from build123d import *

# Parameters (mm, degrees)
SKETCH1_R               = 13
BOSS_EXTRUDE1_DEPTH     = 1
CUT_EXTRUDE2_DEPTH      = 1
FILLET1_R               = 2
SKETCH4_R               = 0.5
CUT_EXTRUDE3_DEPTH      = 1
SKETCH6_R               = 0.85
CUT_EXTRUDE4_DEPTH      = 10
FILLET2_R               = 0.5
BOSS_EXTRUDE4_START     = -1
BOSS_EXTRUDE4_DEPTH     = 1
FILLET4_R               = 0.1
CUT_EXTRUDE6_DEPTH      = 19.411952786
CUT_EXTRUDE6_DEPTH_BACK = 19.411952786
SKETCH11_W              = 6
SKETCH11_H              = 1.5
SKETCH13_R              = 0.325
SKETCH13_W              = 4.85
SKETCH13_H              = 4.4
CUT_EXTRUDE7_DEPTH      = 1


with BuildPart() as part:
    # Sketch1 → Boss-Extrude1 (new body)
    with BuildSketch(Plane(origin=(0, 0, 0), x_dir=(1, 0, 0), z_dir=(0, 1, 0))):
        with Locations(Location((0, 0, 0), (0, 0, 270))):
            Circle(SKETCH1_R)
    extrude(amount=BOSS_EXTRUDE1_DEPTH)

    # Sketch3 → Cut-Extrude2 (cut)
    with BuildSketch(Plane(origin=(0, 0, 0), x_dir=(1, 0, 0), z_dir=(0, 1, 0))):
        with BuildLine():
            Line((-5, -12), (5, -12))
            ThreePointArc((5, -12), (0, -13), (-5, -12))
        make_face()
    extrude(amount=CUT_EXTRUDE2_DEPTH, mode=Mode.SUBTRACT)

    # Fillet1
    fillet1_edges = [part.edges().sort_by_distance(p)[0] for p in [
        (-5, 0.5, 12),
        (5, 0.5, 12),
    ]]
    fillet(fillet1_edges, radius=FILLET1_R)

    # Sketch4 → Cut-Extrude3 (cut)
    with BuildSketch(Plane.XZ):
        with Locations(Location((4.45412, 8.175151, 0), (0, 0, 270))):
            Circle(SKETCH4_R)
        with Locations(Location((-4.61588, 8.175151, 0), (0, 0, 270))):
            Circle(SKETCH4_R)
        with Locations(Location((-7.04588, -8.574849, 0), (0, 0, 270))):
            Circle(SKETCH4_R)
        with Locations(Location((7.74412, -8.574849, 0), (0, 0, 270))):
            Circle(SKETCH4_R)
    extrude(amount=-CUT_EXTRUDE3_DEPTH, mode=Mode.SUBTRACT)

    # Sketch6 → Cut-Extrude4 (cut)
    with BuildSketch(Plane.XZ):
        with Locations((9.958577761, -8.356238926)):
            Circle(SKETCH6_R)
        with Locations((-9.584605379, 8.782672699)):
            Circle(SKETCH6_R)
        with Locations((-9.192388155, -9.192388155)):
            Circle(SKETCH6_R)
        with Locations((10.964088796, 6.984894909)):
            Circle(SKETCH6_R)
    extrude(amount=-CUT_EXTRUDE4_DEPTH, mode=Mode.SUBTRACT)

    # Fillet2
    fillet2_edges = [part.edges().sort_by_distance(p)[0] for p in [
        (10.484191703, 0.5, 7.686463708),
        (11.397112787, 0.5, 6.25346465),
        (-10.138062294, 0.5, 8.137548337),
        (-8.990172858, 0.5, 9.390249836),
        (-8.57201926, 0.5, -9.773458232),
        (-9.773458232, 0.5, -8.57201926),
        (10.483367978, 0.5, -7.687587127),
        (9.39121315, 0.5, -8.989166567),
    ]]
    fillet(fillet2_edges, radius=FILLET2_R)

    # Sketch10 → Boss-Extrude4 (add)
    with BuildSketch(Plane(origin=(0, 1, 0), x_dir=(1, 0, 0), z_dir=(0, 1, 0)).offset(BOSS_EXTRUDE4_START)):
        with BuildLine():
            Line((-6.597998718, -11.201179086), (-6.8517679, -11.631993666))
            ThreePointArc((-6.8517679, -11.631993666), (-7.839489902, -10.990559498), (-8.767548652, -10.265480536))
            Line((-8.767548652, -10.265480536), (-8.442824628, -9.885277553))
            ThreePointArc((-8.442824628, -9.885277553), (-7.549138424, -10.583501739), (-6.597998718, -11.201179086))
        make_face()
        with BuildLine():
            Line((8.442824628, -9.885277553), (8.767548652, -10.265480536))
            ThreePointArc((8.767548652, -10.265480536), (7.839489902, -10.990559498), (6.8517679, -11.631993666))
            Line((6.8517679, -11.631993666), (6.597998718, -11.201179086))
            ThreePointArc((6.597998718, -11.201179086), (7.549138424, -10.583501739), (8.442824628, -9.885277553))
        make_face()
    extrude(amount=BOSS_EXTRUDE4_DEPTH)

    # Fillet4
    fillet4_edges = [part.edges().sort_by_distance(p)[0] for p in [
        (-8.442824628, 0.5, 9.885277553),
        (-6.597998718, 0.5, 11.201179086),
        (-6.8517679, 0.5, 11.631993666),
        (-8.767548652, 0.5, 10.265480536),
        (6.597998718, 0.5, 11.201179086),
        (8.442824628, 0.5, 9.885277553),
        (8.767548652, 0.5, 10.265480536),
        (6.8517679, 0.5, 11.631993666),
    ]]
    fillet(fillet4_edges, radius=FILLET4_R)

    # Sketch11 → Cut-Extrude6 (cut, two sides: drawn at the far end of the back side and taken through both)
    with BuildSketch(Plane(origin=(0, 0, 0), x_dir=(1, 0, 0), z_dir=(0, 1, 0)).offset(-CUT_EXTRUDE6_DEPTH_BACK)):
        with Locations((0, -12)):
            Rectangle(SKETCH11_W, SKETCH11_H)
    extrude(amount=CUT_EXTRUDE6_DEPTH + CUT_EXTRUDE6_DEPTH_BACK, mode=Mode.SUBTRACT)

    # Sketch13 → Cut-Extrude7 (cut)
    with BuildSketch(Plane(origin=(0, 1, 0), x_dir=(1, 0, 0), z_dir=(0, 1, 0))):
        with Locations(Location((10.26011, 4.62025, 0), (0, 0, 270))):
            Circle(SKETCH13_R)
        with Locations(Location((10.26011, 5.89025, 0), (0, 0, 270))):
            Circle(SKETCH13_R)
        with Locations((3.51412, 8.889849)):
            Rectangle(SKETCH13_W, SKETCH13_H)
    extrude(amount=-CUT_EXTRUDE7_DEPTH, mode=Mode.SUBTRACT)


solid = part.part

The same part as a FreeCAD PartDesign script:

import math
import FreeCAD as App
import Part
import Sketcher
from FreeCAD import Vector
Q = App.Units.Quantity


def edges_at(feature, points):
    """Names of the edges that pass closest to the given points."""
    edges = feature.Shape.Edges
    near = lambda p: min(range(len(edges)), key=lambda i: edges[i].distToShape(Part.Vertex(*p))[0])
    return sorted({f"Edge{near(p) + 1}" for p in points})

doc = App.newDocument("Part")
body = doc.addObject("PartDesign::Body", "Body")

# Sketch on XZ plane
sketch1 = body.newObject("Sketcher::SketchObject", "Sketch")
sketch1.AttachmentSupport = (doc.getObject("XZ_Plane"), [""])
sketch1.MapMode = "FlatFace"
sketch1.addGeometry(Part.Circle(Vector(0, 0, 0), Vector(0, 0, 1), 13), False)
sketch1.addConstraint([
    Sketcher.Constraint("Coincident", 0, 3, -1, 1),
    Sketcher.Constraint("Diameter", 0, Q("26 mm")),
])
pad1 = body.newObject("PartDesign::Pad", "Pad")
pad1.Profile = sketch1
pad1.Length = 1
pad1.Reversed = True

# Sketch on XZ plane
sketch2 = body.newObject("Sketcher::SketchObject", "Sketch001")
sketch2.AttachmentSupport = (doc.getObject("XZ_Plane"), [""])
sketch2.MapMode = "FlatFace"
sketch2.addGeometry([
    Part.LineSegment(Vector(5, 12, 0), Vector(-5, 12, 0)),
    Part.ArcOfCircle(Part.Circle(Vector(0, 0, 0), Vector(0, 0, 1), 13), math.radians(67.380135), math.radians(112.619865)),
], False)
sketch2.addConstraint([
    Sketcher.Constraint("Coincident", 0, 1, 1, 1),
    Sketcher.Constraint("Coincident", 1, 2, 0, 2),
    Sketcher.Constraint("Horizontal", 0),
    Sketcher.Constraint("Coincident", 1, 3, -1, 1),
    Sketcher.Constraint("Radius", 1, Q("13 mm")),
    Sketcher.Constraint("DistanceX", 0, 2, 0, 1, Q("10 mm")),
])
pocket1 = body.newObject("PartDesign::Pocket", "Pocket")
pocket1.Profile = sketch2
pocket1.Length = 1
doc.recompute()

fillet = body.newObject("PartDesign::Fillet", "Fillet")
fillet.Base = (pocket1, edges_at(pocket1, [(-5, 0.5, 12), (5, 0.5, 12)]))
fillet.Radius = 2

# Sketch on XZ plane
sketch3 = body.newObject("Sketcher::SketchObject", "Sketch002")
sketch3.AttachmentSupport = (doc.getObject("XZ_Plane"), [""])
sketch3.MapMode = "FlatFace"
sketch3.addGeometry([
    Part.Circle(Vector(4.45412, 8.175151, 0), Vector(0, 0, 1), 0.5),
    Part.Circle(Vector(-4.61588, 8.175151, 0), Vector(0, 0, 1), 0.5),
    Part.Circle(Vector(-7.04588, -8.574849, 0), Vector(0, 0, 1), 0.5),
    Part.Circle(Vector(7.74412, -8.574849, 0), Vector(0, 0, 1), 0.5),
], False)
sketch3.addConstraint([
    Sketcher.Constraint("Equal", 0, 1),
    Sketcher.Constraint("Equal", 1, 2),
    Sketcher.Constraint("Equal", 2, 3),
    Sketcher.Constraint("Horizontal", 0, 3, 1, 3),
    Sketcher.Constraint("Horizontal", 2, 3, 3, 3),
    Sketcher.Constraint("Diameter", 0, Q("1 mm")),
    Sketcher.Constraint("DistanceX", 2, 3, 0, 3, Q("11.5 mm")),
    Sketcher.Constraint("DistanceX", 1, 3, 0, 3, Q("9.07 mm")),
    Sketcher.Constraint("DistanceY", 2, 3, 1, 3, Q("16.75 mm")),
    Sketcher.Constraint("DistanceX", 2, 3, 3, 3, Q("14.79 mm")),
    Sketcher.Constraint("DistanceX", -1, 1, 0, 3, Q("4.45412 mm")),
    Sketcher.Constraint("DistanceY", -1, 1, 0, 3, Q("8.175151 mm")),
])
pocket2 = body.newObject("PartDesign::Pocket", "Pocket001")
pocket2.Profile = sketch3
pocket2.Length = 1

# Sketch on XZ plane
sketch4 = body.newObject("Sketcher::SketchObject", "Sketch003")
sketch4.AttachmentSupport = (doc.getObject("XZ_Plane"), [""])
sketch4.MapMode = "FlatFace"
sketch4.addGeometry([
    Part.Circle(Vector(9.958578, -8.356239, 0), Vector(0, 0, 1), 0.85),
    Part.Circle(Vector(-9.584605, 8.782673, 0), Vector(0, 0, 1), 0.85),
    Part.Circle(Vector(-9.192388, -9.192388, 0), Vector(0, 0, 1), 0.85),
    Part.Circle(Vector(10.964089, 6.984895, 0), Vector(0, 0, 1), 0.85),
], False)
sketch4.addConstraint([
    Sketcher.Constraint("Equal", 0, 1),
    Sketcher.Constraint("Equal", 1, 2),
    Sketcher.Constraint("Equal", 2, 3),
    Sketcher.Constraint("Diameter", 0, Q("1.7 mm")),
    Sketcher.Constraint("DistanceY", 0, 3, -1, 1, Q("8.356239 mm")),
    Sketcher.Constraint("DistanceX", 2, 3, -1, 1, Q("9.192388 mm")),
    Sketcher.Constraint("DistanceY", 2, 3, -1, 1, Q("9.192388 mm")),
    Sketcher.Constraint("DistanceX", -1, 1, 3, 3, Q("10.964089 mm")),
    Sketcher.Constraint("DistanceY", 0, 3, 1, 3, Q("17.138912 mm")),
    Sketcher.Constraint("DistanceX", 0, 3, 3, 3, Q("1.005511 mm")),
    Sketcher.Constraint("DistanceX", 1, 3, -1, 1, Q("9.584605 mm")),
    Sketcher.Constraint("DistanceY", -1, 1, 3, 3, Q("6.984895 mm")),
])
pocket3 = body.newObject("PartDesign::Pocket", "Pocket002")
pocket3.Profile = sketch4
pocket3.Length = 10
doc.recompute()

fillet2 = body.newObject("PartDesign::Fillet", "Fillet001")
fillet2.Base = (pocket3, edges_at(pocket3, [
    (10.484, 0.5, 7.686),
    (11.397, 0.5, 6.253),
    (-10.138, 0.5, 8.138),
    (-8.99, 0.5, 9.39),
    (-8.572, 0.5, -9.773),
    (-9.773, 0.5, -8.572),
    (10.483, 0.5, -7.688),
    (9.391, 0.5, -8.989),
]))
fillet2.Radius = 0.5

# Sketch on XZ plane
sketch5 = body.newObject("Sketcher::SketchObject", "Sketch004")
sketch5.AttachmentSupport = (doc.getObject("XZ_Plane"), [""])
sketch5.MapMode = "FlatFace"
sketch5.addGeometry([
    Part.LineSegment(Vector(-6.851768, 11.631994, 0), Vector(-6.597999, 11.201179, 0)),  # 0
    Part.ArcOfCircle(Part.Circle(Vector(0, 0, 0), Vector(0, 0, 1), 13), math.radians(120.5), math.radians(130.5)),  # 1
    Part.LineSegment(Vector(-8.442825, 9.885278, 0), Vector(-8.767549, 10.265481, 0)),  # 2
    Part.ArcOfCircle(Part.Circle(Vector(0, 0, 0), Vector(0, 0, 1), 13.5), math.radians(120.5), math.radians(130.5)),  # 3
    Part.LineSegment(Vector(8.767549, 10.265481, 0), Vector(8.442825, 9.885278, 0)),  # 4
    Part.ArcOfCircle(Part.Circle(Vector(0, 0, 0), Vector(0, 0, 1), 13), math.radians(49.5), math.radians(59.5)),  # 5
    Part.LineSegment(Vector(6.597999, 11.201179, 0), Vector(6.851768, 11.631994, 0)),  # 6
    Part.ArcOfCircle(Part.Circle(Vector(0, 0, 0), Vector(0, 0, 1), 13.5), math.radians(49.5), math.radians(59.5)),  # 7
], False)
sketch5.addConstraint([
    Sketcher.Constraint("Coincident", 0, 2, 1, 1),
    Sketcher.Constraint("Coincident", 1, 2, 2, 1),
    Sketcher.Constraint("Coincident", 2, 2, 3, 2),
    Sketcher.Constraint("Coincident", 3, 1, 0, 1),
    Sketcher.Constraint("Coincident", 4, 2, 5, 1),
    Sketcher.Constraint("Coincident", 5, 2, 6, 1),
    Sketcher.Constraint("Coincident", 6, 2, 7, 2),
    Sketcher.Constraint("Coincident", 7, 1, 4, 1),
    Sketcher.Constraint("Coincident", 1, 3, -1, 1),
    Sketcher.Constraint("Coincident", 3, 3, -1, 1),
    Sketcher.Constraint("Coincident", 5, 3, -1, 1),
    Sketcher.Constraint("Coincident", 7, 3, -1, 1),
    Sketcher.Constraint("Equal", 1, 5),
    Sketcher.Constraint("Equal", 3, 7),
    Sketcher.Constraint("Horizontal", 1, 2, 4, 2),
    Sketcher.Constraint("Horizontal", 0, 2, 5, 2),
    Sketcher.Constraint("Horizontal", 3, 1, 6, 2),
    Sketcher.Constraint("Horizontal", 2, 2, 7, 1),
    Sketcher.Constraint("Radius", 1, Q("13 mm")),
    Sketcher.Constraint("Radius", 3, Q("13.5 mm")),
    Sketcher.Constraint("Angle", 0, Q("-59.5 deg")),
    Sketcher.Constraint("Angle", 2, Q("130.5 deg")),
    Sketcher.Constraint("DistanceX", 0, 2, -1, 1, Q("6.597999 mm")),
    Sketcher.Constraint("DistanceY", 1, 2, 0, 2, Q("1.315902 mm")),
])
pad2 = body.newObject("PartDesign::Pad", "Pad001")
pad2.Profile = sketch5
pad2.Length = 1
pad2.Reversed = True
doc.recompute()

fillet3 = body.newObject("PartDesign::Fillet", "Fillet002")
fillet3.Base = (pad2, edges_at(pad2, [
    (-8.443, 0.5, 9.885),
    (-6.598, 0.5, 11.201),
    (-6.852, 0.5, 11.632),
    (-8.768, 0.5, 10.265),
    (6.598, 0.5, 11.201),
    (8.443, 0.5, 9.885),
    (8.768, 0.5, 10.265),
    (6.852, 0.5, 11.632),
]))
fillet3.Radius = 0.1

# Sketch on XZ plane
sketch6 = body.newObject("Sketcher::SketchObject", "Sketch005")
sketch6.AttachmentSupport = (doc.getObject("XZ_Plane"), [""])
sketch6.MapMode = "FlatFace"
sketch6.addGeometry([
    Part.LineSegment(Vector(-3, 11.25, 0), Vector(-3, 12.75, 0)),
    Part.LineSegment(Vector(-3, 12.75, 0), Vector(3, 12.75, 0)),
    Part.LineSegment(Vector(3, 12.75, 0), Vector(3, 11.25, 0)),
    Part.LineSegment(Vector(3, 11.25, 0), Vector(-3, 11.25, 0)),
], False)
sketch6.addConstraint([
    Sketcher.Constraint("Coincident", 0, 2, 1, 1),
    Sketcher.Constraint("Coincident", 1, 2, 2, 1),
    Sketcher.Constraint("Coincident", 2, 2, 3, 1),
    Sketcher.Constraint("Coincident", 3, 2, 0, 1),
    Sketcher.Constraint("Vertical", 0),
    Sketcher.Constraint("Horizontal", 1),
    Sketcher.Constraint("Vertical", 2),
    Sketcher.Constraint("Horizontal", 3),
    Sketcher.Constraint("DistanceX", 1, 1, 1, 2, Q("6 mm")),
    Sketcher.Constraint("DistanceY", 0, 1, 0, 2, Q("1.5 mm")),
    Sketcher.Constraint("DistanceX", 0, 2, -1, 1, Q("3 mm")),
    Sketcher.Constraint("DistanceY", -1, 1, 0, 2, Q("12.75 mm")),
])
pocket4 = body.newObject("PartDesign::Pocket", "Pocket003")
pocket4.Profile = sketch6
pocket4.Type = "ThroughAll"
pocket4.Midplane = True

# Sketch on XZ plane
sketch7 = body.newObject("Sketcher::SketchObject", "Sketch006")
sketch7.AttachmentSupport = (doc.getObject("XZ_Plane"), [""])
sketch7.MapMode = "FlatFace"
sketch7.AttachmentOffset = App.Placement(Vector(0, 0, -1), App.Rotation())
sketch7.addGeometry([
    Part.Circle(Vector(10.26011, -4.62025, 0), Vector(0, 0, 1), 0.325),  # 0
    Part.Circle(Vector(10.26011, -5.89025, 0), Vector(0, 0, 1), 0.325),  # 1
    Part.LineSegment(Vector(1.08912, -11.089849, 0), Vector(1.08912, -6.689849, 0)),  # 2
    Part.LineSegment(Vector(1.08912, -6.689849, 0), Vector(5.93912, -6.689849, 0)),  # 3
    Part.LineSegment(Vector(5.93912, -6.689849, 0), Vector(5.93912, -11.089849, 0)),  # 4
    Part.LineSegment(Vector(5.93912, -11.089849, 0), Vector(1.08912, -11.089849, 0)),  # 5
], False)
sketch7.addConstraint([
    Sketcher.Constraint("Coincident", 2, 2, 3, 1),
    Sketcher.Constraint("Coincident", 3, 2, 4, 1),
    Sketcher.Constraint("Coincident", 4, 2, 5, 1),
    Sketcher.Constraint("Coincident", 5, 2, 2, 1),
    Sketcher.Constraint("Vertical", 2),
    Sketcher.Constraint("Horizontal", 3),
    Sketcher.Constraint("Vertical", 4),
    Sketcher.Constraint("Horizontal", 5),
    Sketcher.Constraint("Equal", 0, 1),
    Sketcher.Constraint("Vertical", 0, 3, 1, 3),
    Sketcher.Constraint("Diameter", 0, Q("0.65 mm")),
    Sketcher.Constraint("DistanceY", 2, 1, 2, 2, Q("4.4 mm")),
    Sketcher.Constraint("DistanceX", 3, 1, 3, 2, Q("4.85 mm")),
    Sketcher.Constraint("DistanceY", 1, 3, 0, 3, Q("1.27 mm")),
    Sketcher.Constraint("DistanceY", 2, 2, 1, 3, Q("0.799599 mm")),
    Sketcher.Constraint("DistanceX", -1, 1, 0, 3, Q("10.26011 mm")),
    Sketcher.Constraint("DistanceY", 0, 3, -1, 1, Q("4.62025 mm")),
    Sketcher.Constraint("DistanceX", -1, 1, 2, 2, Q("1.08912 mm")),
])
pocket5 = body.newObject("PartDesign::Pocket", "Pocket004")
pocket5.Profile = sketch7
pocket5.Length = 1
pocket5.Reversed = True

doc.recompute()
